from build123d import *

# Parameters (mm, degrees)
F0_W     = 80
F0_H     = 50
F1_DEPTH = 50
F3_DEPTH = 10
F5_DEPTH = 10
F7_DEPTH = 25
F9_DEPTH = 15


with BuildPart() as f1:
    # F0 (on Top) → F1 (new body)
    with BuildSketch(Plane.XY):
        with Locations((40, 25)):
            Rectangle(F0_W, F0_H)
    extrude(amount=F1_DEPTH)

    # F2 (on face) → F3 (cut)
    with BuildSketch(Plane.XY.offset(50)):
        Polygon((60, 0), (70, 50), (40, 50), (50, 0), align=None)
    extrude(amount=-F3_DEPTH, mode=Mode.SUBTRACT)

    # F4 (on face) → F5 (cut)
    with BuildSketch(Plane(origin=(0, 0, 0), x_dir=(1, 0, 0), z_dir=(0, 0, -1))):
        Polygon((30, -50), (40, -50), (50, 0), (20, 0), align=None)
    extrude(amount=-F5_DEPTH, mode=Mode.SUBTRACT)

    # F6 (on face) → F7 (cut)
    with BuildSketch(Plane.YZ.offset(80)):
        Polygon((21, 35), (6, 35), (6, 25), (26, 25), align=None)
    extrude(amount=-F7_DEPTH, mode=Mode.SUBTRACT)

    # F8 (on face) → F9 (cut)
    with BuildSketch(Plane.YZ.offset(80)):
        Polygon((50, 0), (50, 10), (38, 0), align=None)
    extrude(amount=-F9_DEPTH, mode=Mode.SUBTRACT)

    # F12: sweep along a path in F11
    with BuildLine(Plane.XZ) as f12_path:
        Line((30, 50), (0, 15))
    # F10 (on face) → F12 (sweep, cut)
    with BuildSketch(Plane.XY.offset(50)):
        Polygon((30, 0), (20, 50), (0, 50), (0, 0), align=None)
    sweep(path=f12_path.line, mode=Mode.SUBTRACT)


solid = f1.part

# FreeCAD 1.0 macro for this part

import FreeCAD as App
import Part
import Sketcher

V = App.Vector

doc = App.newDocument("Part")
params = doc.addObject("Spreadsheet::Sheet", "Params")
for row, (alias, value) in enumerate([
    ("sketch1_width", "80 mm"),
    ("sketch1_height", "50 mm"),
    ("pad1_length", "50 mm"),
    ("sketch2_width", "30 mm"),
    ("sketch2_width2", "10 mm"),
    ("pocket1_length", "10 mm"),
    ("sketch3_width", "10 mm"),
    ("sketch3_width2", "30 mm"),
    ("pocket2_length", "10 mm"),
    ("sketch4_width", "15 mm"),
    ("sketch4_width2", "20 mm"),
    ("sketch4_height", "10 mm"),
    ("pocket3_length", "25 mm"),
    ("sketch5_width", "12 mm"),
    ("sketch5_height", "10 mm"),
    ("pocket4_length", "15 mm"),
    ("sketch6_width", "20 mm"),
    ("sketch6_width2", "30 mm"),
    ("sketch6_height", "50 mm"),
], start=1):
    params.set(f"A{row}", alias)
    params.set(f"B{row}", "=" + value)
    params.setAlias(f"B{row}", alias)

body = doc.addObject("PartDesign::Body", "Body")

# Sketch on XY plane
sketch1 = body.newObject("Sketcher::SketchObject", "Sketch")
sketch1.AttachmentSupport = (doc.getObject("XY_Plane"), [""])
sketch1.MapMode = "FlatFace"
sketch1.addGeometry([
    Part.LineSegment(V(0, 50, 0), V(0, 0, 0)),
    Part.LineSegment(V(0, 0, 0), V(80, 0, 0)),
    Part.LineSegment(V(80, 0, 0), V(80, 50, 0)),
    Part.LineSegment(V(80, 50, 0), V(0, 50, 0)),
], False)
sketch1.addConstraint([
    Sketcher.Constraint("Coincident", 0, 2, 1, 1),
    Sketcher.Constraint("Coincident", 1, 2, 2, 1),
    Sketcher.Constraint("Coincident", 2, 2, 3, 1),
    Sketcher.Constraint("Coincident", 3, 2, 0, 1),
    Sketcher.Constraint("Vertical", 0),
    Sketcher.Constraint("Horizontal", 1),
    Sketcher.Constraint("Vertical", 2),
    Sketcher.Constraint("Horizontal", 3),
    Sketcher.Constraint("Coincident", 0, 2, -1, 1),
    Sketcher.Constraint("DistanceX", 1, 1, 1, 2, 80.0),
    Sketcher.Constraint("DistanceY", 0, 2, 0, 1, 50.0),
])
sketch1.setExpression("Constraints[9]", "Params.sketch1_width")
sketch1.setExpression("Constraints[10]", "Params.sketch1_height")
pad1 = body.newObject("PartDesign::Pad", "Pad")
pad1.Profile = sketch1
pad1.setExpression("Length", "Params.pad1_length")

# Sketch on XY plane
sketch2 = body.newObject("Sketcher::SketchObject", "Sketch001")
sketch2.AttachmentSupport = (doc.getObject("XY_Plane"), [""])
sketch2.MapMode = "FlatFace"
sketch2.AttachmentOffset = App.Placement(V(0, 0, 50), App.Rotation())
sketch2.addGeometry([
    Part.LineSegment(V(60, 0, 0), V(70, 50, 0)),
    Part.LineSegment(V(70, 50, 0), V(40, 50, 0)),
    Part.LineSegment(V(40, 50, 0), V(50, 0, 0)),
    Part.LineSegment(V(50, 0, 0), V(60, 0, 0)),
], False)
sketch2.addConstraint([
    Sketcher.Constraint("Coincident", 0, 2, 1, 1),
    Sketcher.Constraint("Coincident", 1, 2, 2, 1),
    Sketcher.Constraint("Coincident", 2, 2, 3, 1),
    Sketcher.Constraint("Coincident", 3, 2, 0, 1),
    Sketcher.Constraint("Horizontal", 1),
    Sketcher.Constraint("Horizontal", 3),
    Sketcher.Constraint("PointOnObject", 2, 2, -1),
    Sketcher.Constraint("Equal", 0, 2),
    Sketcher.Constraint("DistanceX", 1, 2, 1, 1, 30.0),
    Sketcher.Constraint("DistanceX", 3, 1, 3, 2, 10.0),
    Sketcher.Constraint("DistanceX", -1, 1, 0, 2, 70.0),
    Sketcher.Constraint("DistanceY", -1, 1, 0, 2, 50.0),
])
sketch2.setExpression("Constraints[8]", "Params.sketch2_width")
sketch2.setExpression("Constraints[9]", "Params.sketch2_width2")
pocket1 = body.newObject("PartDesign::Pocket", "Pocket")
pocket1.Profile = sketch2
pocket1.setExpression("Length", "Params.pocket1_length")

# Sketch on XY plane
sketch3 = body.newObject("Sketcher::SketchObject", "Sketch002")
sketch3.AttachmentSupport = (doc.getObject("XY_Plane"), [""])
sketch3.MapMode = "FlatFace"
sketch3.addGeometry([
    Part.LineSegment(V(30, 50, 0), V(40, 50, 0)),
    Part.LineSegment(V(40, 50, 0), V(50, 0, 0)),
    Part.LineSegment(V(50, 0, 0), V(20, 0, 0)),
    Part.LineSegment(V(20, 0, 0), V(30, 50, 0)),
], False)
sketch3.addConstraint([
    Sketcher.Constraint("Coincident", 0, 2, 1, 1),
    Sketcher.Constraint("Coincident", 1, 2, 2, 1),
    Sketcher.Constraint("Coincident", 2, 2, 3, 1),
    Sketcher.Constraint("Coincident", 3, 2, 0, 1),
    Sketcher.Constraint("Horizontal", 0),
    Sketcher.Constraint("Horizontal", 2),
    Sketcher.Constraint("PointOnObject", 1, 2, -1),
    Sketcher.Constraint("Equal", 1, 3),
    Sketcher.Constraint("DistanceX", 0, 1, 0, 2, 10.0),
    Sketcher.Constraint("DistanceX", 2, 2, 2, 1, 30.0),
    Sketcher.Constraint("DistanceX", -1, 1, 0, 2, 40.0),
    Sketcher.Constraint("DistanceY", -1, 1, 0, 2, 50.0),
])
sketch3.setExpression("Constraints[8]", "Params.sketch3_width")
sketch3.setExpression("Constraints[9]", "Params.sketch3_width2")
pocket2 = body.newObject("PartDesign::Pocket", "Pocket001")
pocket2.Profile = sketch3
pocket2.setExpression("Length", "Params.pocket2_length")
pocket2.Reversed = True

# Sketch on YZ plane
sketch4 = body.newObject("Sketcher::SketchObject", "Sketch003")
sketch4.AttachmentSupport = (doc.getObject("YZ_Plane"), [""])
sketch4.MapMode = "FlatFace"
sketch4.AttachmentOffset = App.Placement(V(0, 0, 80), App.Rotation())
sketch4.addGeometry([
    Part.LineSegment(V(21, 35, 0), V(6, 35, 0)),
    Part.LineSegment(V(6, 35, 0), V(6, 25, 0)),
    Part.LineSegment(V(6, 25, 0), V(26, 25, 0)),
    Part.LineSegment(V(26, 25, 0), V(21, 35, 0)),
], False)
sketch4.addConstraint([
    Sketcher.Constraint("Coincident", 0, 2, 1, 1),
    Sketcher.Constraint("Coincident", 1, 2, 2, 1),
    Sketcher.Constraint("Coincident", 2, 2, 3, 1),
    Sketcher.Constraint("Coincident", 3, 2, 0, 1),
    Sketcher.Constraint("Horizontal", 0),
    Sketcher.Constraint("Vertical", 1),
    Sketcher.Constraint("Horizontal", 2),
    Sketcher.Constraint("DistanceX", 0, 2, 0, 1, 15.0),
    Sketcher.Constraint("DistanceX", 2, 1, 2, 2, 20.0),
    Sketcher.Constraint("DistanceY", 1, 2, 1, 1, 10.0),
    Sketcher.Constraint("DistanceX", -1, 1, 0, 2, 6.0),
    Sketcher.Constraint("DistanceY", -1, 1, 0, 2, 35.0),
])
sketch4.setExpression("Constraints[7]", "Params.sketch4_width")
sketch4.setExpression("Constraints[8]", "Params.sketch4_width2")
sketch4.setExpression("Constraints[9]", "Params.sketch4_height")
pocket3 = body.newObject("PartDesign::Pocket", "Pocket002")
pocket3.Profile = sketch4
pocket3.setExpression("Length", "Params.pocket3_length")

# Sketch on YZ plane
sketch5 = body.newObject("Sketcher::SketchObject", "Sketch004")
sketch5.AttachmentSupport = (doc.getObject("YZ_Plane"), [""])
sketch5.MapMode = "FlatFace"
sketch5.AttachmentOffset = App.Placement(V(0, 0, 80), App.Rotation())
sketch5.addGeometry([
    Part.LineSegment(V(50, 0, 0), V(50, 10, 0)),
    Part.LineSegment(V(50, 10, 0), V(38, 0, 0)),
    Part.LineSegment(V(38, 0, 0), V(50, 0, 0)),
], False)
sketch5.addConstraint([
    Sketcher.Constraint("Coincident", 0, 2, 1, 1),
    Sketcher.Constraint("Coincident", 1, 2, 2, 1),
    Sketcher.Constraint("Coincident", 2, 2, 0, 1),
    Sketcher.Constraint("Vertical", 0),
    Sketcher.Constraint("Horizontal", 2),
    Sketcher.Constraint("PointOnObject", 1, 2, -1),
    Sketcher.Constraint("DistanceX", 2, 1, 2, 2, 12.0),
    Sketcher.Constraint("DistanceY", 0, 1, 0, 2, 10.0),
    Sketcher.Constraint("DistanceX", -1, 1, 0, 2, 50.0),
])
sketch5.setExpression("Constraints[6]", "Params.sketch5_width")
sketch5.setExpression("Constraints[7]", "Params.sketch5_height")
pocket4 = body.newObject("PartDesign::Pocket", "Pocket003")
pocket4.Profile = sketch5
pocket4.setExpression("Length", "Params.pocket4_length")

# Sketch on XY plane
sketch6 = body.newObject("Sketcher::SketchObject", "Sketch005")
sketch6.AttachmentSupport = (doc.getObject("XY_Plane"), [""])
sketch6.MapMode = "FlatFace"
sketch6.AttachmentOffset = App.Placement(V(0, 0, 50), App.Rotation())
sketch6.addGeometry([
    Part.LineSegment(V(30, 0, 0), V(20, 50, 0)),
    Part.LineSegment(V(20, 50, 0), V(0, 50, 0)),
    Part.LineSegment(V(0, 50, 0), V(0, 0, 0)),
    Part.LineSegment(V(0, 0, 0), V(30, 0, 0)),
], False)
sketch6.addConstraint([
    Sketcher.Constraint("Coincident", 0, 2, 1, 1),
    Sketcher.Constraint("Coincident", 1, 2, 2, 1),
    Sketcher.Constraint("Coincident", 2, 2, 3, 1),
    Sketcher.Constraint("Coincident", 3, 2, 0, 1),
    Sketcher.Constraint("Horizontal", 1),
    Sketcher.Constraint("Vertical", 2),
    Sketcher.Constraint("Horizontal", 3),
    Sketcher.Constraint("Coincident", 2, 2, -1, 1),
    Sketcher.Constraint("DistanceX", 1, 2, 1, 1, 20.0),
    Sketcher.Constraint("DistanceX", 3, 1, 3, 2, 30.0),
    Sketcher.Constraint("DistanceY", 2, 2, 2, 1, 50.0),
])
sketch6.setExpression("Constraints[8]", "Params.sketch6_width")
sketch6.setExpression("Constraints[9]", "Params.sketch6_width2")
sketch6.setExpression("Constraints[10]", "Params.sketch6_height")

# Sketch on an angled plane
sketch7 = body.newObject("Sketcher::SketchObject", "Sketch006")
sketch7.Placement = App.Placement(V(-7.411765, 0, 6.352941), App.Rotation(V(-0.650791373, 0, -0.759256602), V(0, 0.999999999, 0), V(0.759256602, 0, -0.650791373), "ZXY"))
sketch7.addGeometry(Part.LineSegment(V(-57, 0, 0), V(-11, 0, 0)), False)
sketch7.addConstraint([
    Sketcher.Constraint("Horizontal", 0),
    Sketcher.Constraint("PointOnObject", 0, 1, -1),
    Sketcher.Constraint("DistanceX", 0, 1, 0, 2, 46.097722),
    Sketcher.Constraint("DistanceX", 0, 1, -1, 1, 57.486571),
])
doc.recompute()

subtractivepipe = body.newObject("PartDesign::SubtractivePipe", "SubtractivePipe")
subtractivepipe.Profile = sketch6
subtractivepipe.Spine = (sketch7, ["Edge1"])

doc.recompute()
